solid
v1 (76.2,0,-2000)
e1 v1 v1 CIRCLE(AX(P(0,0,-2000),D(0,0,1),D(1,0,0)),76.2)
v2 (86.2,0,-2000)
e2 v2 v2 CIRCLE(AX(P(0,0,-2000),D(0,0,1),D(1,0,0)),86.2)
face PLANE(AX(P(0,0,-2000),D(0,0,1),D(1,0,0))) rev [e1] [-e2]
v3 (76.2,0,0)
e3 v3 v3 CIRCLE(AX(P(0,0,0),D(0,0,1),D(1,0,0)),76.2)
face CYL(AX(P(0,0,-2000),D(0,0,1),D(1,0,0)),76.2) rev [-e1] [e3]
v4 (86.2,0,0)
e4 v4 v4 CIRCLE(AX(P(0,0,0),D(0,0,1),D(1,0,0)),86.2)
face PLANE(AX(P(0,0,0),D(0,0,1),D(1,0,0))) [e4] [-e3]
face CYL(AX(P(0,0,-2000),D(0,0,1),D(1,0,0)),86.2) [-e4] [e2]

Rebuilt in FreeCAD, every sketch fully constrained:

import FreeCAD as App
import Part
import Sketcher
Q = App.Units.Quantity

doc = App.newDocument("Part")
params = doc.addObject("Spreadsheet::Sheet", "Params")
for row, (alias, value) in enumerate([
    ("sketch1_diameter", "172.4 mm"),
    ("sketch1_diameter2", "152.4 mm"),
    ("pad1_length", "2000 mm"),
], start=1):
    params.set(f"A{row}", alias)
    params.set(f"B{row}", "=" + value)
    params.setAlias(f"B{row}", alias)

body = doc.addObject("PartDesign::Body", "Body")

sketch1 = doc.addObject("Sketcher::SketchObject", "Sketch")
body.addObject(sketch1)
sketch1.AttachmentSupport = (doc.XY_Plane, [""])
sketch1.MapMode = "FlatFace"
sketch1.addGeometry([
    Part.Circle(App.Vector(0, 0, 0), App.Vector(0, 0, 1), 86),
    Part.Circle(App.Vector(0, 0, 0), App.Vector(0, 0, 1), 76),
], False)
sketch1.addConstraint([
    Sketcher.Constraint("Coincident", 0, 3, -1, 1),
    Sketcher.Constraint("Coincident", 1, 3, -1, 1),
    Sketcher.Constraint("Diameter", 0, Q("172.4 mm")),
    Sketcher.Constraint("Diameter", 1, Q("152.4 mm")),
])
sketch1.setExpression("Constraints[2]", "Params.sketch1_diameter")
sketch1.setExpression("Constraints[3]", "Params.sketch1_diameter2")
pad1 = doc.addObject("PartDesign::Pad", "Pad")
body.addObject(pad1)
pad1.Profile = sketch1
pad1.setExpression("Length", "Params.pad1_length")
pad1.Reversed = True

doc.recompute()
